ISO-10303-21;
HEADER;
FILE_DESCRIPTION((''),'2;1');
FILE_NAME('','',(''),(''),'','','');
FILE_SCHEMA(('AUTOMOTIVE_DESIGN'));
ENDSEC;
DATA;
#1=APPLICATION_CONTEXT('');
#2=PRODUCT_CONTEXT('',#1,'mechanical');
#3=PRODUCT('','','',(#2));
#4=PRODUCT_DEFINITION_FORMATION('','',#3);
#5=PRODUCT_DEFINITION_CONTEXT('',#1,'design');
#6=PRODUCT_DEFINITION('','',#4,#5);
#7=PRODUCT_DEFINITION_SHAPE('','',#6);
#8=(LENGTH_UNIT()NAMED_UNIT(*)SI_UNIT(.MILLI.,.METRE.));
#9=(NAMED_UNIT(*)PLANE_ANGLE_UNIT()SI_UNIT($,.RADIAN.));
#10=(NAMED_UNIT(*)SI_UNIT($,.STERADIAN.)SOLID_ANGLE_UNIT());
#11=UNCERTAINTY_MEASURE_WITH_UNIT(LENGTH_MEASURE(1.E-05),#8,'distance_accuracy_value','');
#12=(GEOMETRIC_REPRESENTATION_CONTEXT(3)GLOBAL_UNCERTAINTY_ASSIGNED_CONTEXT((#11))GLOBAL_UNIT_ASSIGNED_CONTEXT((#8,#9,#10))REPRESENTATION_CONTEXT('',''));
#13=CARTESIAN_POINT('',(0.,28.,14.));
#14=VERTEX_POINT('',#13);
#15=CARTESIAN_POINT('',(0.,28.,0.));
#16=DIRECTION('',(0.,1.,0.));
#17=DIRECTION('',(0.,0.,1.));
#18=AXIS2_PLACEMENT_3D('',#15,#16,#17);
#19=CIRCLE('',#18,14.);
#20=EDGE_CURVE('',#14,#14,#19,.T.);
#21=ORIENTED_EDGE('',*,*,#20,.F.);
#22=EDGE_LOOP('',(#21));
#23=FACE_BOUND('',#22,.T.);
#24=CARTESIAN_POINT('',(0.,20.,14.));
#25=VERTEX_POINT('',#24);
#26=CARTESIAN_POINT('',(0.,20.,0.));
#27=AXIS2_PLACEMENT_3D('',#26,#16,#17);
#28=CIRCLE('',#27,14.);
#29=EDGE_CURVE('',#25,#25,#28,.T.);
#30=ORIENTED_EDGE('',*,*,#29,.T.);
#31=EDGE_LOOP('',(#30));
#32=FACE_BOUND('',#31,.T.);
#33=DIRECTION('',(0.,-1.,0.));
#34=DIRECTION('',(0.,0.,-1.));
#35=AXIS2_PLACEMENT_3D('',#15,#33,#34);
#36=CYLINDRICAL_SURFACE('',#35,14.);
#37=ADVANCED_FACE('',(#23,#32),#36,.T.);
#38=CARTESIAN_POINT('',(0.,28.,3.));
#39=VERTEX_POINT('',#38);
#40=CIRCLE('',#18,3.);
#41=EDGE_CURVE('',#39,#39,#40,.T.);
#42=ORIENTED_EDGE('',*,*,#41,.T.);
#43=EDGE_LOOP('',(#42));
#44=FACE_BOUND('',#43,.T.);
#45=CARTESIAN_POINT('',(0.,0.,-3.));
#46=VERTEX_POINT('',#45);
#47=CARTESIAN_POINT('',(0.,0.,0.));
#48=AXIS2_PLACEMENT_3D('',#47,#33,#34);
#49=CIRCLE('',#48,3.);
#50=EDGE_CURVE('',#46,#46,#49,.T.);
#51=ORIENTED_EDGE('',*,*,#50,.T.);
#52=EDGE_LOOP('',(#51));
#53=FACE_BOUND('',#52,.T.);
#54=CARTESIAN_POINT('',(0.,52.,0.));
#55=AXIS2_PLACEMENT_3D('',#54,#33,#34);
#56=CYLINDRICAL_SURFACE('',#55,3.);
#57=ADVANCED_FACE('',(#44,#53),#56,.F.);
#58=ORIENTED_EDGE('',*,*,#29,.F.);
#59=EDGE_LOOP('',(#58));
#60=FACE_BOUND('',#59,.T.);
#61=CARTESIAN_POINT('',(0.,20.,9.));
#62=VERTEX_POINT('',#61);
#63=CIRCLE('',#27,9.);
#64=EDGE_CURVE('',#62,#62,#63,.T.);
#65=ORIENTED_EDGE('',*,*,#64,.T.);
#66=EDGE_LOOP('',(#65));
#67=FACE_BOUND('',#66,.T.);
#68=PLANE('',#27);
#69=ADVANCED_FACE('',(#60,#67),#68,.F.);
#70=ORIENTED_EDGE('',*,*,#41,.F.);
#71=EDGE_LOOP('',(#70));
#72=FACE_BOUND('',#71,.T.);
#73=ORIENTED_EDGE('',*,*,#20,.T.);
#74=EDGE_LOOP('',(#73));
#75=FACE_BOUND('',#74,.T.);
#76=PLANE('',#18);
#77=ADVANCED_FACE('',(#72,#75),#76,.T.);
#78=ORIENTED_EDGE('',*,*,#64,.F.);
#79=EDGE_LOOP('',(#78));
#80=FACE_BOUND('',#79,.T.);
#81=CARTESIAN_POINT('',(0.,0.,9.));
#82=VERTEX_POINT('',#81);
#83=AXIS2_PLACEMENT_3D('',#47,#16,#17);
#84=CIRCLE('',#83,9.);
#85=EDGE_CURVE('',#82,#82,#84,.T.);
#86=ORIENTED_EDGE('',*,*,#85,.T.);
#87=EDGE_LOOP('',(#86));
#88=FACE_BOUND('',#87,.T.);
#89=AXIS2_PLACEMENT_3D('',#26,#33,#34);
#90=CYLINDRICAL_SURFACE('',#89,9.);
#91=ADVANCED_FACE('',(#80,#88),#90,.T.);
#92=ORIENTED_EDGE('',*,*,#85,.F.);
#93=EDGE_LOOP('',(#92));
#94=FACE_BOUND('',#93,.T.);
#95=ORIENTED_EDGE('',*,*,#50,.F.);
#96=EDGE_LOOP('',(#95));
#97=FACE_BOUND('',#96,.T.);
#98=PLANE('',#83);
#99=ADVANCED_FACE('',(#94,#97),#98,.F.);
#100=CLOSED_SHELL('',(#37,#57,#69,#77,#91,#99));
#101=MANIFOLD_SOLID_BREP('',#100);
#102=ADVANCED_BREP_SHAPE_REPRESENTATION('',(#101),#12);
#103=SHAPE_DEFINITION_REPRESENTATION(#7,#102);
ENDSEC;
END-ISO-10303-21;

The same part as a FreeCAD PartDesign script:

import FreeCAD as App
import Part
import Sketcher

V = App.Vector
Q = App.Units.Quantity

doc = App.newDocument("Part")
body = doc.addObject("PartDesign::Body", "Body")

# Sketch on XZ plane
sketch1 = body.newObject("Sketcher::SketchObject", "Sketch")
sketch1.AttachmentSupport = (doc.getObject("XZ_Plane"), [""])
sketch1.MapMode = "FlatFace"
sketch1.addGeometry(Part.Circle(V(0, 0, 0), V(0, 0, 1), 9), False)
sketch1.addConstraint([
    Sketcher.Constraint("Coincident", 0, 3, -1, 1),
    Sketcher.Constraint("Diameter", 0, Q("18 mm")),
])
pad1 = body.newObject("PartDesign::Pad", "Pad")
pad1.Profile = sketch1
pad1.Length = 20
pad1.Reversed = True

# Sketch on XZ plane
sketch2 = body.newObject("Sketcher::SketchObject", "Sketch001")
sketch2.AttachmentSupport = (doc.getObject("XZ_Plane"), [""])
sketch2.MapMode = "FlatFace"
sketch2.addGeometry(Part.Circle(V(0, 0, 0), V(0, 0, 1), 3), False)
sketch2.addConstraint([
    Sketcher.Constraint("Coincident", 0, 3, -1, 1),
    Sketcher.Constraint("Diameter", 0, Q("6 mm")),
])
pocket1 = body.newObject("PartDesign::Pocket", "Pocket")
pocket1.Profile = sketch2
pocket1.Length = 52

# Sketch on XZ plane
sketch3 = body.newObject("Sketcher::SketchObject", "Sketch002")
sketch3.AttachmentSupport = (doc.getObject("XZ_Plane"), [""])
sketch3.MapMode = "FlatFace"
sketch3.AttachmentOffset = App.Placement(V(0, 0, -20), App.Rotation())
sketch3.addGeometry(Part.Circle(V(0, 0, 0), V(0, 0, 1), 14), False)
sketch3.addConstraint([
    Sketcher.Constraint("Coincident", 0, 3, -1, 1),
    Sketcher.Constraint("Diameter", 0, Q("28 mm")),
])
pad2 = body.newObject("PartDesign::Pad", "Pad001")
pad2.Profile = sketch3
pad2.Length = 8
pad2.Reversed = True

# Sketch on XZ plane
sketch4 = body.newObject("Sketcher::SketchObject", "Sketch003")
sketch4.AttachmentSupport = (doc.getObject("XZ_Plane"), [""])
sketch4.MapMode = "FlatFace"
sketch4.AttachmentOffset = App.Placement(V(0, 0, -28), App.Rotation())
sketch4.addGeometry(Part.Circle(V(0, 0, 0), V(0, 0, 1), 3), False)
sketch4.addConstraint([
    Sketcher.Constraint("Coincident", 0, 3, -1, 1),
    Sketcher.Constraint("Diameter", 0, Q("6 mm")),
])
pocket2 = body.newObject("PartDesign::Pocket", "Pocket001")
pocket2.Profile = sketch4
pocket2.Length = 12
pocket2.Reversed = True

doc.recompute()
